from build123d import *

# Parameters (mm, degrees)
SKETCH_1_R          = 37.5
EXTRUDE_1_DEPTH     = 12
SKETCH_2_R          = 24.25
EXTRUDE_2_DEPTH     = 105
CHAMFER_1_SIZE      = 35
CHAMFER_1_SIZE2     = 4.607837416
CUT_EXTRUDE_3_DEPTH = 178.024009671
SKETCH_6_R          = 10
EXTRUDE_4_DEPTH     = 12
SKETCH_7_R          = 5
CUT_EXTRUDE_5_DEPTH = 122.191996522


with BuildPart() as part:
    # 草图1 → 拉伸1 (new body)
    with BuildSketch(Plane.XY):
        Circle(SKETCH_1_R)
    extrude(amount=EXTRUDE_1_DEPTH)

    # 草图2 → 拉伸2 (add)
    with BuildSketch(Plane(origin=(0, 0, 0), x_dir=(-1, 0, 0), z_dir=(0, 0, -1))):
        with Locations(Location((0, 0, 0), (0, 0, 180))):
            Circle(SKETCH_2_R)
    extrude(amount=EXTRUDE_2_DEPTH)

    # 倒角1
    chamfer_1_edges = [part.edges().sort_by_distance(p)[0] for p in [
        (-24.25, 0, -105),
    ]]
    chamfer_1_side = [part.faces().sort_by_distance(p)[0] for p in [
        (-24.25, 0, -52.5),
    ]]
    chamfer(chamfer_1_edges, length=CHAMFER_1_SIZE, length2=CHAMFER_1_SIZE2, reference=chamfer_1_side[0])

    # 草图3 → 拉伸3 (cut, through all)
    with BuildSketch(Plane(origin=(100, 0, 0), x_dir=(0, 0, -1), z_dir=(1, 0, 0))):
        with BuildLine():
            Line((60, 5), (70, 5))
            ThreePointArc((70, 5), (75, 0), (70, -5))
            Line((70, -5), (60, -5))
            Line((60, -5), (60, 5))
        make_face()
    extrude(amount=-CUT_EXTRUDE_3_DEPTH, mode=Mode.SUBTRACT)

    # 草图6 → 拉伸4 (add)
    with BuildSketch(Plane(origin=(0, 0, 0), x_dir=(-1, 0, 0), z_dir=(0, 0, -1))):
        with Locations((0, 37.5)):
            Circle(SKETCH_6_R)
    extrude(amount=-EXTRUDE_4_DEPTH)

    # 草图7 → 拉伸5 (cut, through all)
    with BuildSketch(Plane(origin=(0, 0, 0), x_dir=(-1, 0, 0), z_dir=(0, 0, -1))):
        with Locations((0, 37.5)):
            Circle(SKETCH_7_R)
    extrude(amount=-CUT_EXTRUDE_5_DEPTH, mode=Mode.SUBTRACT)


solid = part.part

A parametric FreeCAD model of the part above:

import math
import FreeCAD as App
import Part
import Sketcher

V = App.Vector
Q = App.Units.Quantity


def edges_at(feature, points):
    """Names of the edges that pass closest to the given points."""
    edges = feature.Shape.Edges
    near = lambda p: min(range(len(edges)), key=lambda i: edges[i].distToShape(Part.Vertex(*p))[0])
    return sorted({f"Edge{near(p) + 1}" for p in points})

doc = App.newDocument("Part")
body = doc.addObject("PartDesign::Body", "Body")

# Sketch on XY plane
sketch1 = body.newObject("Sketcher::SketchObject", "Sketch")
sketch1.AttachmentSupport = (doc.getObject("XY_Plane"), [""])
sketch1.MapMode = "FlatFace"
sketch1.addGeometry(Part.Circle(V(0, 0, 0), V(0, 0, 1), 37.5), False)
sketch1.addConstraint([
    Sketcher.Constraint("Coincident", 0, 3, -1, 1),
    Sketcher.Constraint("Diameter", 0, Q("75 mm")),
])
pad1 = body.newObject("PartDesign::Pad", "Pad")
pad1.Profile = sketch1
pad1.Length = 12

# Sketch on XY plane
sketch2 = body.newObject("Sketcher::SketchObject", "Sketch001")
sketch2.AttachmentSupport = (doc.getObject("XY_Plane"), [""])
sketch2.MapMode = "FlatFace"
sketch2.addGeometry(Part.Circle(V(0, 0, 0), V(0, 0, 1), 24.25), False)
sketch2.addConstraint([
    Sketcher.Constraint("Coincident", 0, 3, -1, 1),
    Sketcher.Constraint("Diameter", 0, Q("48.5 mm")),
])
pad2 = body.newObject("PartDesign::Pad", "Pad001")
pad2.Profile = sketch2
pad2.Length = 105
pad2.Reversed = True
doc.recompute()

chamfer = body.newObject("PartDesign::Chamfer", "Chamfer")
chamfer.Base = (pad2, edges_at(pad2, [(-24.25, 0, -105)]))
chamfer.ChamferType = "Two distances"
chamfer.Size = 35
chamfer.Size2 = 4.607837

# Sketch on YZ plane
sketch3 = body.newObject("Sketcher::SketchObject", "Sketch002")
sketch3.AttachmentSupport = (doc.getObject("YZ_Plane"), [""])
sketch3.MapMode = "FlatFace"
sketch3.AttachmentOffset = App.Placement(V(0, 0, 100), App.Rotation())
sketch3.addGeometry([
    Part.LineSegment(V(5, -70, 0), V(5, -60, 0)),
    Part.LineSegment(V(5, -60, 0), V(-5, -60, 0)),
    Part.LineSegment(V(-5, -60, 0), V(-5, -70, 0)),
    Part.ArcOfCircle(Part.Circle(V(0, -70, 0), V(0, 0, 1), 5), math.radians(180), math.radians(360)),
], False)
sketch3.addConstraint([
    Sketcher.Constraint("Coincident", 0, 2, 1, 1),
    Sketcher.Constraint("Coincident", 1, 2, 2, 1),
    Sketcher.Constraint("Tangent", 2, 2, 3, 1),
    Sketcher.Constraint("Tangent", 3, 2, 0, 1),
    Sketcher.Constraint("Vertical", 0),
    Sketcher.Constraint("Horizontal", 1),
    Sketcher.Constraint("Vertical", 2),
    Sketcher.Constraint("PointOnObject", 3, 3, -2),
    Sketcher.Constraint("Equal", 1, 0),
    Sketcher.Constraint("Radius", 3, Q("5 mm")),
    Sketcher.Constraint("DistanceY", 3, 3, -1, 1, Q("70 mm")),
])
pocket1 = body.newObject("PartDesign::Pocket", "Pocket")
pocket1.Profile = sketch3
pocket1.Type = "ThroughAll"

# Sketch on XY plane
sketch4 = body.newObject("Sketcher::SketchObject", "Sketch003")
sketch4.AttachmentSupport = (doc.getObject("XY_Plane"), [""])
sketch4.MapMode = "FlatFace"
sketch4.addGeometry(Part.Circle(V(0, 37.5, 0), V(0, 0, 1), 10), False)
sketch4.addConstraint([
    Sketcher.Constraint("PointOnObject", 0, 3, -2),
    Sketcher.Constraint("Diameter", 0, Q("20 mm")),
    Sketcher.Constraint("DistanceY", -1, 1, 0, 3, Q("37.5 mm")),
])
pad3 = body.newObject("PartDesign::Pad", "Pad002")
pad3.Profile = sketch4
pad3.Length = 12

# Sketch on XY plane
sketch5 = body.newObject("Sketcher::SketchObject", "Sketch004")
sketch5.AttachmentSupport = (doc.getObject("XY_Plane"), [""])
sketch5.MapMode = "FlatFace"
sketch5.addGeometry(Part.Circle(V(0, 37.5, 0), V(0, 0, 1), 5), False)
sketch5.addConstraint([
    Sketcher.Constraint("PointOnObject", 0, 3, -2),
    Sketcher.Constraint("Diameter", 0, Q("10 mm")),
    Sketcher.Constraint("DistanceY", -1, 1, 0, 3, Q("37.5 mm")),
])
pocket2 = body.newObject("PartDesign::Pocket", "Pocket001")
pocket2.Profile = sketch5
pocket2.Type = "ThroughAll"
pocket2.Reversed = True

doc.recompute()
